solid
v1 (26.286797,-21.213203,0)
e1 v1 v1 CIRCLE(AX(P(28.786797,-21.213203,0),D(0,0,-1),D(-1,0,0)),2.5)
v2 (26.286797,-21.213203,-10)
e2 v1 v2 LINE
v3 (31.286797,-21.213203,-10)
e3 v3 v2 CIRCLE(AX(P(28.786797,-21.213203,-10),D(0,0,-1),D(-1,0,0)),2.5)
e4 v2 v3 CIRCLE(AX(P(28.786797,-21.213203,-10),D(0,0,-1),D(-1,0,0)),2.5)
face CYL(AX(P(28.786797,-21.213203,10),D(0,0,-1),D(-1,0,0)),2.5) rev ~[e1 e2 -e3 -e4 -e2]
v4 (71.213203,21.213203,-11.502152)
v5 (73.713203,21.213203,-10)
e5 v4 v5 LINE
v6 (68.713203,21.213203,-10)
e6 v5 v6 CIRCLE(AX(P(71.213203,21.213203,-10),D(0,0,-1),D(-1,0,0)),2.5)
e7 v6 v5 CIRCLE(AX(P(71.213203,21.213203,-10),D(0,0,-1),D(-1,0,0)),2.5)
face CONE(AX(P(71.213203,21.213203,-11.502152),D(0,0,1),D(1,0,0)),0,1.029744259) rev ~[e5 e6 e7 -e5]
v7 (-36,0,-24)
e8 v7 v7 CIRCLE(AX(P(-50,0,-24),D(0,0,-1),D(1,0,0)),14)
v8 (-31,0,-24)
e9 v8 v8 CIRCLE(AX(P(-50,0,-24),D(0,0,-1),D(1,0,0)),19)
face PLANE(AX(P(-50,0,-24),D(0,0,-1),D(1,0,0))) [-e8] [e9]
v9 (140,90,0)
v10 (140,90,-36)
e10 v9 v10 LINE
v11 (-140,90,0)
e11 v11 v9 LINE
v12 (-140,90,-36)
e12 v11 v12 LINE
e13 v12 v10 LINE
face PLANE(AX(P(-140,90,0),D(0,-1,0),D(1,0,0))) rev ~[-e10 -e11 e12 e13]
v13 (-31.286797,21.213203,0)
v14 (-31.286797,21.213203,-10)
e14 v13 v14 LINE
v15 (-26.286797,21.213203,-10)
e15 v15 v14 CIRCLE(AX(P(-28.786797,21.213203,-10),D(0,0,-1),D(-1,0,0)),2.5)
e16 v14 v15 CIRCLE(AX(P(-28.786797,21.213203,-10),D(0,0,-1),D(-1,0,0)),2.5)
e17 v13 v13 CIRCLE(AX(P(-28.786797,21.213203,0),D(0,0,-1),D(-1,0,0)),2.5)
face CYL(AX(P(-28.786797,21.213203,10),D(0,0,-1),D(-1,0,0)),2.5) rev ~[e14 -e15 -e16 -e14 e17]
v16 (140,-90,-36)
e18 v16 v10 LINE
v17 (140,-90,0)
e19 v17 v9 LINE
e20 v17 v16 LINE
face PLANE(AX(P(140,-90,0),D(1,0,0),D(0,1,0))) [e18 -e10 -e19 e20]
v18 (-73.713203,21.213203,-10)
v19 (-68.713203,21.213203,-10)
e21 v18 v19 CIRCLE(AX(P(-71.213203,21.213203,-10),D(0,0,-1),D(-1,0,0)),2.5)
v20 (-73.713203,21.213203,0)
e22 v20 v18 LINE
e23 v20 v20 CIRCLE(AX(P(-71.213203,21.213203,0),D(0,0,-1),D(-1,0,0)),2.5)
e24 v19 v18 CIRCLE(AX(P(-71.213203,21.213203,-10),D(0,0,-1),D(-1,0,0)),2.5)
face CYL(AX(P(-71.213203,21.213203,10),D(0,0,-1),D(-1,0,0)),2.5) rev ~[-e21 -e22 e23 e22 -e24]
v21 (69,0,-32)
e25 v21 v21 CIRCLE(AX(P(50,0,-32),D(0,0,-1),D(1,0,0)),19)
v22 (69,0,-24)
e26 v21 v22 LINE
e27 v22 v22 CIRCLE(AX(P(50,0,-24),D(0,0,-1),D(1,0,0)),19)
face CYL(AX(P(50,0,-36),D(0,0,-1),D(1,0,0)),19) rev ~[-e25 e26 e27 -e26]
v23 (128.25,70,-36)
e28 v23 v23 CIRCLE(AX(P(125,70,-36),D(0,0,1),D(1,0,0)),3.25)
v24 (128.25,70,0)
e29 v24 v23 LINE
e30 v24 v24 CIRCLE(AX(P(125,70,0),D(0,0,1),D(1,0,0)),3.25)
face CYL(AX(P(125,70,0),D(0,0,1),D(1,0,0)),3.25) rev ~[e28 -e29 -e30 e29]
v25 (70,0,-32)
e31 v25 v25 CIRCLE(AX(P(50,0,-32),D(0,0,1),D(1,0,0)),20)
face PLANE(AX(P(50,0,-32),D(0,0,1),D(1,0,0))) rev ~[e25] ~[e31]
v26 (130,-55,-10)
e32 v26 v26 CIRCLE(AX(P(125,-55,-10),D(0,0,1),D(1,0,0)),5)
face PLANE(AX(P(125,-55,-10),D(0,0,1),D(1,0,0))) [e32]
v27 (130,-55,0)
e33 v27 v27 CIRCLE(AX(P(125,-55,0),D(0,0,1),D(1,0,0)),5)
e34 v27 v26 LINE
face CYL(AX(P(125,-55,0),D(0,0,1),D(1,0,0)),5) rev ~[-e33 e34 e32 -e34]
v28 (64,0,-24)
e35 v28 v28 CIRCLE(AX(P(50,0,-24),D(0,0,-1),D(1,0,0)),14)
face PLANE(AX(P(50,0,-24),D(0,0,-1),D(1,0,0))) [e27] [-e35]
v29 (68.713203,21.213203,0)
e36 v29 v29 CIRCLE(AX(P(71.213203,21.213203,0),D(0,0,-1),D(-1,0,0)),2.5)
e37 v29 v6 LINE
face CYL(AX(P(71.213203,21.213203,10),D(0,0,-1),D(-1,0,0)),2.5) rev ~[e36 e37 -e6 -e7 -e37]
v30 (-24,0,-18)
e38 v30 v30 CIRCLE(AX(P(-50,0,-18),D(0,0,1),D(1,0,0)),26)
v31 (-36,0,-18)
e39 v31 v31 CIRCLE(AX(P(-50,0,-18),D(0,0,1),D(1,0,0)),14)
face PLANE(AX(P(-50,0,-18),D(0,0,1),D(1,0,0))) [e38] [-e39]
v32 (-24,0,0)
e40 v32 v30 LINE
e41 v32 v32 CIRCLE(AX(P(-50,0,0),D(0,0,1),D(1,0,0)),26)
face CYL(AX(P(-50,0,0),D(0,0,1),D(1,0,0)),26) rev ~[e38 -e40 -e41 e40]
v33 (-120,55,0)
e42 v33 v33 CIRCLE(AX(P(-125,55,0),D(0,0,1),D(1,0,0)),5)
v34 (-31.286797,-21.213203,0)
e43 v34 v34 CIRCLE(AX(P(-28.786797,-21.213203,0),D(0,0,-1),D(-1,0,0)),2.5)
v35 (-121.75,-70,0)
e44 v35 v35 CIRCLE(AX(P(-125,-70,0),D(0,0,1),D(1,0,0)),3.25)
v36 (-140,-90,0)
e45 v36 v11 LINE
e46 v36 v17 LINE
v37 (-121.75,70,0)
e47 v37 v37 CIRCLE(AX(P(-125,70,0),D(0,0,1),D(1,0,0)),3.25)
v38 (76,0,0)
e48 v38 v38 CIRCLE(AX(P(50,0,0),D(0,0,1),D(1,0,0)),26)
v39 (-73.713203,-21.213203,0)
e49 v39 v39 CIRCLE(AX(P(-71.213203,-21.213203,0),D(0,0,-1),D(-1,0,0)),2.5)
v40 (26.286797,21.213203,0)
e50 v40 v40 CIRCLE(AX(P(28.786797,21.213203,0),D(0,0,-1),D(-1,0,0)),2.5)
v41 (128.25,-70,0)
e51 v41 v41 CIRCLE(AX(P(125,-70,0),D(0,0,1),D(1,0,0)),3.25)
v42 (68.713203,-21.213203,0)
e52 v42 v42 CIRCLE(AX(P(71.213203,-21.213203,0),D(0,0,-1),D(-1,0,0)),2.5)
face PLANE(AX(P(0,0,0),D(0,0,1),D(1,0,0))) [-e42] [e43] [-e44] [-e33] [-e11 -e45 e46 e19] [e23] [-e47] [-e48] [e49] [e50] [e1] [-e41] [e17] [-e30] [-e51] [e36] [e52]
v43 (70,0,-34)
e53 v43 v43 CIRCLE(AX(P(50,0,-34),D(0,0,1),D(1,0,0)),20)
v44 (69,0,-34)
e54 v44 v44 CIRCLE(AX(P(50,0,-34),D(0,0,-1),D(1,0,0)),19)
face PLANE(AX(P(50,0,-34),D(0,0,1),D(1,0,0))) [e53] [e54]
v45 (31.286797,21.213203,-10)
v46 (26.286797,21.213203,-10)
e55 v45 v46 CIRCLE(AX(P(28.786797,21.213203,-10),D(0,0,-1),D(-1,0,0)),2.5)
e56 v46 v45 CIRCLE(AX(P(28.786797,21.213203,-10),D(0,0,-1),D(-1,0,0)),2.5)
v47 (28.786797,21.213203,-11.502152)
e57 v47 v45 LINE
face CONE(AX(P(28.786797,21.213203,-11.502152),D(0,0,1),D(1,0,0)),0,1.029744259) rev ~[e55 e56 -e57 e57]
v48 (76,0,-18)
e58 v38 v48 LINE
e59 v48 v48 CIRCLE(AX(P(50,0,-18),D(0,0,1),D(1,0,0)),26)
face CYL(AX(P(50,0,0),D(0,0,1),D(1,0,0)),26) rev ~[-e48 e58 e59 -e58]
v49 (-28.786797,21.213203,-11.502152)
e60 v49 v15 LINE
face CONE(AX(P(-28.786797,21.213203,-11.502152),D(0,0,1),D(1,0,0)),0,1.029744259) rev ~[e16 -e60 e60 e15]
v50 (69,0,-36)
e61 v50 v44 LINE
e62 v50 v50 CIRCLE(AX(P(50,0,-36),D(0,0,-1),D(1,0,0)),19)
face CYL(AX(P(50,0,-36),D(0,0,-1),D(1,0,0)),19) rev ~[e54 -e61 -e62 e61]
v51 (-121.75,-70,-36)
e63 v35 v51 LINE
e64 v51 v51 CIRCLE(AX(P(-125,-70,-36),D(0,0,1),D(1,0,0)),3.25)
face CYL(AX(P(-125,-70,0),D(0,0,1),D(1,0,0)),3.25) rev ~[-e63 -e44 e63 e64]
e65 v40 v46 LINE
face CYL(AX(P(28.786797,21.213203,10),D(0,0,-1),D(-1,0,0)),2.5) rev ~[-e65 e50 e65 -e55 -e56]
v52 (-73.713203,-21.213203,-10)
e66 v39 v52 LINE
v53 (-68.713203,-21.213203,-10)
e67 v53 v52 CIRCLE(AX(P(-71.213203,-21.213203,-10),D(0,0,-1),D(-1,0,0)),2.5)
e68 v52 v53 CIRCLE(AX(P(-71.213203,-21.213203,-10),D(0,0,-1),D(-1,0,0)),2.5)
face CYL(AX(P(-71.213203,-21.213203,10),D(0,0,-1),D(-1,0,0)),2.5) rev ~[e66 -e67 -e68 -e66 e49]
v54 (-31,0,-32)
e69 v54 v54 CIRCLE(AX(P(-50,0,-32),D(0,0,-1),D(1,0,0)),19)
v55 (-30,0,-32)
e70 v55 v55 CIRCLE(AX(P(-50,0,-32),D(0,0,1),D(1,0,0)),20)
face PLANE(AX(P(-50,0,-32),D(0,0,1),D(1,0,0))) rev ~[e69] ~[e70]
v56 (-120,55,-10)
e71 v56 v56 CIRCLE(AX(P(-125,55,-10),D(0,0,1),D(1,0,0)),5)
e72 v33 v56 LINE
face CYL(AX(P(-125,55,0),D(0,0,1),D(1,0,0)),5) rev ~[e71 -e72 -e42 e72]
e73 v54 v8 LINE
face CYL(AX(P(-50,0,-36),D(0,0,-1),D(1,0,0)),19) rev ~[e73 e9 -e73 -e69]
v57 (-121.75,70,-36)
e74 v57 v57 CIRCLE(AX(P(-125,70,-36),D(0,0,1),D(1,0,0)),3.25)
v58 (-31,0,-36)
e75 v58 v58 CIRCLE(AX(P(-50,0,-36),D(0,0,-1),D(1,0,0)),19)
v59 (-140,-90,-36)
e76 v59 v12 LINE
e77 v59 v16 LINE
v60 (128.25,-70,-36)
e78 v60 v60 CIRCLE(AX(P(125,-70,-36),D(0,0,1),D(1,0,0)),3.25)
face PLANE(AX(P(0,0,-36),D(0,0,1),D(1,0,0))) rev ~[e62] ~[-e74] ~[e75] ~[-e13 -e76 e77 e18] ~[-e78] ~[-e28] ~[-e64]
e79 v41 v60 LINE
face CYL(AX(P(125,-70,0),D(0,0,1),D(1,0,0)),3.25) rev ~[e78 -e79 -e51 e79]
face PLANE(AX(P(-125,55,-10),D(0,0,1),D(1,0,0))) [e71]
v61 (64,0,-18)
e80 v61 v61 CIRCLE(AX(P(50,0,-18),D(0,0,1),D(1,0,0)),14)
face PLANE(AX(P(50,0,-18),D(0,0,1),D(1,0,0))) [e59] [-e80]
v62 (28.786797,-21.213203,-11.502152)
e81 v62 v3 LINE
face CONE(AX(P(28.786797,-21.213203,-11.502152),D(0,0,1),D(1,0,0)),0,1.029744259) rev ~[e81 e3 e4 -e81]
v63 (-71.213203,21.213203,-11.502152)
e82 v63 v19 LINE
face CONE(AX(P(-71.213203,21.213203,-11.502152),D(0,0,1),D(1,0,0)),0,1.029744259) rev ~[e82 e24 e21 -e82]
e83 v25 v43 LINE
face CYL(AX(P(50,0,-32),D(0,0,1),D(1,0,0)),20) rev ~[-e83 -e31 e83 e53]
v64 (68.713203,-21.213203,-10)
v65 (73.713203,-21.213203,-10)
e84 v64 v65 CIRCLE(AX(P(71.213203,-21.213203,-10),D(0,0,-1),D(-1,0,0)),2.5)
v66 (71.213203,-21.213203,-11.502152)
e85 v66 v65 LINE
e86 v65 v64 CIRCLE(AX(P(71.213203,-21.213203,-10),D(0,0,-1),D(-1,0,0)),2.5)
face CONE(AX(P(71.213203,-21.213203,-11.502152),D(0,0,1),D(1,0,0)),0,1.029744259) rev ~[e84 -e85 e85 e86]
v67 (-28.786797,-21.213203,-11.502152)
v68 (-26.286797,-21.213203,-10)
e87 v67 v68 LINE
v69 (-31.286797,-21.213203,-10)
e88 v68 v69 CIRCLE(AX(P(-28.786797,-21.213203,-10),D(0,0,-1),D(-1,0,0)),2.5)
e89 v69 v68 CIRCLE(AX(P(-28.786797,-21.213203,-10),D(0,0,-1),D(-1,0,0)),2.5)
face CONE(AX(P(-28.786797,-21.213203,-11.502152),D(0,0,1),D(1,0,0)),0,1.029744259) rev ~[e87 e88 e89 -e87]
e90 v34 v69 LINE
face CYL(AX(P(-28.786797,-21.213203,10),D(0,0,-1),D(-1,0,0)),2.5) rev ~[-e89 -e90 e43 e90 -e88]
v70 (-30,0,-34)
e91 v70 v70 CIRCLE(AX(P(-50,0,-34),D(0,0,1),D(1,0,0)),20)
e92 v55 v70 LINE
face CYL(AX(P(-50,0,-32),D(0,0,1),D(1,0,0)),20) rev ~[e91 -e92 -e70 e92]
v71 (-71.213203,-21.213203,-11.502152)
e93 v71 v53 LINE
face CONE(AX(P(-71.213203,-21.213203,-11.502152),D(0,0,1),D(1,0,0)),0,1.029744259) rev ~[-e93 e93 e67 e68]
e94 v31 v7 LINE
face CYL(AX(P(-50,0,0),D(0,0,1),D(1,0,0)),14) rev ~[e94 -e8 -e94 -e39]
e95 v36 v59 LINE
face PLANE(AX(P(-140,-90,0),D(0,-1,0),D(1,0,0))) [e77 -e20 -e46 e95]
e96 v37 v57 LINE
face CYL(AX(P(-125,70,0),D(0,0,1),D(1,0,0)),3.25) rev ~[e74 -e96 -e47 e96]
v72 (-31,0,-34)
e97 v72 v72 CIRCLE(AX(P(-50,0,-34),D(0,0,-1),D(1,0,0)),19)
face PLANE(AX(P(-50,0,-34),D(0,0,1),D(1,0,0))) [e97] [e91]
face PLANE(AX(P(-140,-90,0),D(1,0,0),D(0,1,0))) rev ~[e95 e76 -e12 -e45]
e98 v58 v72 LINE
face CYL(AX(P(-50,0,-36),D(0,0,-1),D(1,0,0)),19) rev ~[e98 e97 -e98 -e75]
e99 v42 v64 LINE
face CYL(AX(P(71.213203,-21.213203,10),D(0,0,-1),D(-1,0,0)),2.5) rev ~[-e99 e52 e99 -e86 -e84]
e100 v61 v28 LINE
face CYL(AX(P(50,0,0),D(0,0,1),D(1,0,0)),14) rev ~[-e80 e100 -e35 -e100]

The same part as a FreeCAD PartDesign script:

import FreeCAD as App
import Part
import Sketcher
from FreeCAD import Vector
Q = App.Units.Quantity

doc = App.newDocument("Part")
body = doc.addObject("PartDesign::Body", "Body")

sketch1 = body.newObject("Sketcher::SketchObject", "Sketch")
sketch1.AttachmentSupport = (doc.getObject("XY_Plane"), [""])
sketch1.MapMode = "FlatFace"
sketch1.addGeometry([
    Part.LineSegment(Vector(-140, 90, 0), Vector(-140, -90, 0)),
    Part.LineSegment(Vector(-140, -90, 0), Vector(140, -90, 0)),
    Part.LineSegment(Vector(140, -90, 0), Vector(140, 90, 0)),
    Part.LineSegment(Vector(140, 90, 0), Vector(-140, 90, 0)),
    Part.Circle(Vector(-125, -70, 0), Vector(0, 0, 1), 3.2),
    Part.Circle(Vector(125, -70, 0), Vector(0, 0, 1), 3.2),
    Part.Circle(Vector(-50, 0, 0), Vector(0, 0, 1), 14),
    Part.Circle(Vector(-125, 70, 0), Vector(0, 0, 1), 3.2),
    Part.Circle(Vector(50, 0, 0), Vector(0, 0, 1), 14),
    Part.Circle(Vector(125, 70, 0), Vector(0, 0, 1), 3.2),
], False)
sketch1.addConstraint([
    Sketcher.Constraint("Coincident", 0, 2, 1, 1),
    Sketcher.Constraint("Coincident", 1, 2, 2, 1),
    Sketcher.Constraint("Coincident", 2, 2, 3, 1),
    Sketcher.Constraint("Coincident", 3, 2, 0, 1),
    Sketcher.Constraint("Vertical", 0),
    Sketcher.Constraint("Horizontal", 1),
    Sketcher.Constraint("Vertical", 2),
    Sketcher.Constraint("Horizontal", 3),
    Sketcher.Constraint("Equal", 4, 5),
    Sketcher.Constraint("Equal", 5, 7),
    Sketcher.Constraint("Equal", 6, 8),
    Sketcher.Constraint("Equal", 7, 9),
    Sketcher.Constraint("Symmetric", 5, 3, 7, 3, -1, 1),
    Sketcher.Constraint("Symmetric", 6, 3, 8, 3, -1, 1),
    Sketcher.Constraint("Symmetric", 4, 3, 9, 3, -1, 1),
    Sketcher.Constraint("Symmetric", 0, 2, 2, 2, -1, 1),
    Sketcher.Constraint("Symmetric", 4, 3, 5, 3, -2),
    Sketcher.Constraint("PointOnObject", 6, 3, -1),
    Sketcher.Constraint("Diameter", 6, Q("28 mm")),
    Sketcher.Constraint("Diameter", 4, Q("6.5 mm")),
    Sketcher.Constraint("DistanceX", 1, 1, 1, 2, Q("280 mm")),
    Sketcher.Constraint("DistanceY", 0, 2, 0, 1, Q("180 mm")),
    Sketcher.Constraint("DistanceX", 4, 3, -1, 1, Q("125 mm")),
    Sketcher.Constraint("DistanceY", 4, 3, -1, 1, Q("70 mm")),
    Sketcher.Constraint("DistanceX", 6, 3, -1, 1, Q("50 mm")),
])
pad1 = body.newObject("PartDesign::Pad", "Pad")
pad1.Profile = sketch1
pad1.Length = 36
pad1.Reversed = True

sketch2 = body.newObject("Sketcher::SketchObject", "Sketch001")
sketch2.AttachmentSupport = (doc.getObject("XY_Plane"), [""])
sketch2.MapMode = "FlatFace"
sketch2.addGeometry([
    Part.Circle(Vector(-50, 0, 0), Vector(0, 0, 1), 26),
    Part.Circle(Vector(-50, 0, 0), Vector(0, 0, 1), 14),
    Part.Circle(Vector(50, 0, 0), Vector(0, 0, 1), 26),
    Part.Circle(Vector(50, 0, 0), Vector(0, 0, 1), 14),
], False)
sketch2.addConstraint([
    Sketcher.Constraint("Coincident", 1, 3, 0, 3),
    Sketcher.Constraint("Coincident", 3, 3, 2, 3),
    Sketcher.Constraint("Equal", 0, 2),
    Sketcher.Constraint("Equal", 1, 3),
    Sketcher.Constraint("Symmetric", 0, 3, 2, 3, -1, 1),
    Sketcher.Constraint("PointOnObject", 0, 3, -1),
    Sketcher.Constraint("Diameter", 0, Q("52 mm")),
    Sketcher.Constraint("Diameter", 1, Q("28 mm")),
    Sketcher.Constraint("DistanceX", 0, 3, -1, 1, Q("50 mm")),
])
pocket1 = body.newObject("PartDesign::Pocket", "Pocket")
pocket1.Profile = sketch2
pocket1.Length = 18

sketch3 = body.newObject("Sketcher::SketchObject", "Sketch002")
sketch3.AttachmentSupport = (doc.getObject("XY_Plane"), [""])
sketch3.MapMode = "FlatFace"
sketch3.addGeometry([
    Part.Circle(Vector(-125, 55, 0), Vector(0, 0, 1), 5),
    Part.Circle(Vector(125, -55, 0), Vector(0, 0, 1), 5),
], False)
sketch3.addConstraint([
    Sketcher.Constraint("Equal", 0, 1),
    Sketcher.Constraint("Symmetric", 0, 3, 1, 3, -1, 1),
    Sketcher.Constraint("Diameter", 0, Q("10 mm")),
    Sketcher.Constraint("DistanceX", 0, 3, -1, 1, Q("125 mm")),
    Sketcher.Constraint("DistanceY", -1, 1, 0, 3, Q("55 mm")),
])
pocket2 = body.newObject("PartDesign::Pocket", "Pocket001")
pocket2.Profile = sketch3
pocket2.Length = 10

sketch4 = body.newObject("Sketcher::SketchObject", "Sketch003")
sketch4.AttachmentSupport = (doc.getObject("XY_Plane"), [""])
sketch4.MapMode = "FlatFace"
sketch4.addGeometry([
    Part.Circle(Vector(-71.2, 21.2, 0), Vector(0, 0, 1), 2.5),
    Part.Circle(Vector(-71.2, -21.2, 0), Vector(0, 0, 1), 2.5),
    Part.Circle(Vector(-28.8, -21.2, 0), Vector(0, 0, 1), 2.5),
    Part.Circle(Vector(-28.8, 21.2, 0), Vector(0, 0, 1), 2.5),
    Part.Circle(Vector(28.8, 21.2, 0), Vector(0, 0, 1), 2.5),
    Part.Circle(Vector(28.8, -21.2, 0), Vector(0, 0, 1), 2.5),
    Part.Circle(Vector(71.2, -21.2, 0), Vector(0, 0, 1), 2.5),
    Part.Circle(Vector(71.2, 21.2, 0), Vector(0, 0, 1), 2.5),
], False)
sketch4.addConstraint([
    Sketcher.Constraint("Equal", 0, 1),
    Sketcher.Constraint("Equal", 1, 2),
    Sketcher.Constraint("Equal", 2, 3),
    Sketcher.Constraint("Equal", 3, 4),
    Sketcher.Constraint("Equal", 4, 5),
    Sketcher.Constraint("Equal", 5, 6),
    Sketcher.Constraint("Equal", 6, 7),
    Sketcher.Constraint("Symmetric", 2, 3, 4, 3, -1, 1),
    Sketcher.Constraint("Symmetric", 3, 3, 5, 3, -1, 1),
    Sketcher.Constraint("Symmetric", 0, 3, 6, 3, -1, 1),
    Sketcher.Constraint("Symmetric", 1, 3, 7, 3, -1, 1),
    Sketcher.Constraint("Symmetric", 3, 3, 4, 3, -2),
    Sketcher.Constraint("Symmetric", 1, 3, 6, 3, -2),
    Sketcher.Constraint("Horizontal", 1, 3, 2, 3),
    Sketcher.Constraint("Diameter", 0, Q("5 mm")),
    Sketcher.Constraint("DistanceX", 0, 3, 4, 3, Q("100 mm")),
    Sketcher.Constraint("DistanceX", 0, 3, -1, 1, Q("71.213203 mm")),
    Sketcher.Constraint("DistanceY", -1, 1, 0, 3, Q("21.213203 mm")),
])
doc.recompute()
hole = body.newObject("PartDesign::Hole", "Hole")
hole.Profile = sketch4
hole.ThreadType = "None"
hole.Diameter = 5
hole.DepthType = "Dimension"
hole.Depth = 10
hole.DrillPoint = "Angled"
hole.DrillPointAngle = 118

sketch5 = body.newObject("Sketcher::SketchObject", "Sketch004")
sketch5.AttachmentSupport = (doc.getObject("XY_Plane"), [""])
sketch5.MapMode = "FlatFace"
sketch5.AttachmentOffset = App.Placement(Vector(0, 0, -36), App.Rotation())
sketch5.addGeometry([
    Part.Circle(Vector(50, 0, 0), Vector(0, 0, 1), 19),
    Part.Circle(Vector(50, 0, 0), Vector(0, 0, 1), 14),
    Part.Circle(Vector(-50, 0, 0), Vector(0, 0, 1), 19),
    Part.Circle(Vector(-50, 0, 0), Vector(0, 0, 1), 14),
], False)
sketch5.addConstraint([
    Sketcher.Constraint("Coincident", 1, 3, 0, 3),
    Sketcher.Constraint("Coincident", 3, 3, 2, 3),
    Sketcher.Constraint("Equal", 0, 2),
    Sketcher.Constraint("Equal", 1, 3),
    Sketcher.Constraint("Symmetric", 0, 3, 2, 3, -1, 1),
    Sketcher.Constraint("PointOnObject", 0, 3, -1),
    Sketcher.Constraint("Diameter", 0, Q("38 mm")),
    Sketcher.Constraint("Diameter", 1, Q("28 mm")),
    Sketcher.Constraint("DistanceX", -1, 1, 0, 3, Q("50 mm")),
])
pocket3 = body.newObject("PartDesign::Pocket", "Pocket002")
pocket3.Profile = sketch5
pocket3.Length = 12
pocket3.Reversed = True

sketch6 = body.newObject("Sketcher::SketchObject", "Sketch005")
sketch6.AttachmentSupport = (doc.getObject("XY_Plane"), [""])
sketch6.MapMode = "FlatFace"
sketch6.AttachmentOffset = App.Placement(Vector(0, 0, -32), App.Rotation())
sketch6.addGeometry([
    Part.Circle(Vector(-50, 0, 0), Vector(0, 0, 1), 20),
    Part.Circle(Vector(50, 0, 0), Vector(0, 0, 1), 20),
], False)
sketch6.addConstraint([
    Sketcher.Constraint("Equal", 0, 1),
    Sketcher.Constraint("Symmetric", 0, 3, 1, 3, -1, 1),
    Sketcher.Constraint("PointOnObject", 0, 3, -1),
    Sketcher.Constraint("Diameter", 0, Q("40 mm")),
    Sketcher.Constraint("DistanceX", 0, 3, -1, 1, Q("50 mm")),
])
pocket4 = body.newObject("PartDesign::Pocket", "Pocket003")
pocket4.Profile = sketch6
pocket4.Length = 2

doc.recompute()
